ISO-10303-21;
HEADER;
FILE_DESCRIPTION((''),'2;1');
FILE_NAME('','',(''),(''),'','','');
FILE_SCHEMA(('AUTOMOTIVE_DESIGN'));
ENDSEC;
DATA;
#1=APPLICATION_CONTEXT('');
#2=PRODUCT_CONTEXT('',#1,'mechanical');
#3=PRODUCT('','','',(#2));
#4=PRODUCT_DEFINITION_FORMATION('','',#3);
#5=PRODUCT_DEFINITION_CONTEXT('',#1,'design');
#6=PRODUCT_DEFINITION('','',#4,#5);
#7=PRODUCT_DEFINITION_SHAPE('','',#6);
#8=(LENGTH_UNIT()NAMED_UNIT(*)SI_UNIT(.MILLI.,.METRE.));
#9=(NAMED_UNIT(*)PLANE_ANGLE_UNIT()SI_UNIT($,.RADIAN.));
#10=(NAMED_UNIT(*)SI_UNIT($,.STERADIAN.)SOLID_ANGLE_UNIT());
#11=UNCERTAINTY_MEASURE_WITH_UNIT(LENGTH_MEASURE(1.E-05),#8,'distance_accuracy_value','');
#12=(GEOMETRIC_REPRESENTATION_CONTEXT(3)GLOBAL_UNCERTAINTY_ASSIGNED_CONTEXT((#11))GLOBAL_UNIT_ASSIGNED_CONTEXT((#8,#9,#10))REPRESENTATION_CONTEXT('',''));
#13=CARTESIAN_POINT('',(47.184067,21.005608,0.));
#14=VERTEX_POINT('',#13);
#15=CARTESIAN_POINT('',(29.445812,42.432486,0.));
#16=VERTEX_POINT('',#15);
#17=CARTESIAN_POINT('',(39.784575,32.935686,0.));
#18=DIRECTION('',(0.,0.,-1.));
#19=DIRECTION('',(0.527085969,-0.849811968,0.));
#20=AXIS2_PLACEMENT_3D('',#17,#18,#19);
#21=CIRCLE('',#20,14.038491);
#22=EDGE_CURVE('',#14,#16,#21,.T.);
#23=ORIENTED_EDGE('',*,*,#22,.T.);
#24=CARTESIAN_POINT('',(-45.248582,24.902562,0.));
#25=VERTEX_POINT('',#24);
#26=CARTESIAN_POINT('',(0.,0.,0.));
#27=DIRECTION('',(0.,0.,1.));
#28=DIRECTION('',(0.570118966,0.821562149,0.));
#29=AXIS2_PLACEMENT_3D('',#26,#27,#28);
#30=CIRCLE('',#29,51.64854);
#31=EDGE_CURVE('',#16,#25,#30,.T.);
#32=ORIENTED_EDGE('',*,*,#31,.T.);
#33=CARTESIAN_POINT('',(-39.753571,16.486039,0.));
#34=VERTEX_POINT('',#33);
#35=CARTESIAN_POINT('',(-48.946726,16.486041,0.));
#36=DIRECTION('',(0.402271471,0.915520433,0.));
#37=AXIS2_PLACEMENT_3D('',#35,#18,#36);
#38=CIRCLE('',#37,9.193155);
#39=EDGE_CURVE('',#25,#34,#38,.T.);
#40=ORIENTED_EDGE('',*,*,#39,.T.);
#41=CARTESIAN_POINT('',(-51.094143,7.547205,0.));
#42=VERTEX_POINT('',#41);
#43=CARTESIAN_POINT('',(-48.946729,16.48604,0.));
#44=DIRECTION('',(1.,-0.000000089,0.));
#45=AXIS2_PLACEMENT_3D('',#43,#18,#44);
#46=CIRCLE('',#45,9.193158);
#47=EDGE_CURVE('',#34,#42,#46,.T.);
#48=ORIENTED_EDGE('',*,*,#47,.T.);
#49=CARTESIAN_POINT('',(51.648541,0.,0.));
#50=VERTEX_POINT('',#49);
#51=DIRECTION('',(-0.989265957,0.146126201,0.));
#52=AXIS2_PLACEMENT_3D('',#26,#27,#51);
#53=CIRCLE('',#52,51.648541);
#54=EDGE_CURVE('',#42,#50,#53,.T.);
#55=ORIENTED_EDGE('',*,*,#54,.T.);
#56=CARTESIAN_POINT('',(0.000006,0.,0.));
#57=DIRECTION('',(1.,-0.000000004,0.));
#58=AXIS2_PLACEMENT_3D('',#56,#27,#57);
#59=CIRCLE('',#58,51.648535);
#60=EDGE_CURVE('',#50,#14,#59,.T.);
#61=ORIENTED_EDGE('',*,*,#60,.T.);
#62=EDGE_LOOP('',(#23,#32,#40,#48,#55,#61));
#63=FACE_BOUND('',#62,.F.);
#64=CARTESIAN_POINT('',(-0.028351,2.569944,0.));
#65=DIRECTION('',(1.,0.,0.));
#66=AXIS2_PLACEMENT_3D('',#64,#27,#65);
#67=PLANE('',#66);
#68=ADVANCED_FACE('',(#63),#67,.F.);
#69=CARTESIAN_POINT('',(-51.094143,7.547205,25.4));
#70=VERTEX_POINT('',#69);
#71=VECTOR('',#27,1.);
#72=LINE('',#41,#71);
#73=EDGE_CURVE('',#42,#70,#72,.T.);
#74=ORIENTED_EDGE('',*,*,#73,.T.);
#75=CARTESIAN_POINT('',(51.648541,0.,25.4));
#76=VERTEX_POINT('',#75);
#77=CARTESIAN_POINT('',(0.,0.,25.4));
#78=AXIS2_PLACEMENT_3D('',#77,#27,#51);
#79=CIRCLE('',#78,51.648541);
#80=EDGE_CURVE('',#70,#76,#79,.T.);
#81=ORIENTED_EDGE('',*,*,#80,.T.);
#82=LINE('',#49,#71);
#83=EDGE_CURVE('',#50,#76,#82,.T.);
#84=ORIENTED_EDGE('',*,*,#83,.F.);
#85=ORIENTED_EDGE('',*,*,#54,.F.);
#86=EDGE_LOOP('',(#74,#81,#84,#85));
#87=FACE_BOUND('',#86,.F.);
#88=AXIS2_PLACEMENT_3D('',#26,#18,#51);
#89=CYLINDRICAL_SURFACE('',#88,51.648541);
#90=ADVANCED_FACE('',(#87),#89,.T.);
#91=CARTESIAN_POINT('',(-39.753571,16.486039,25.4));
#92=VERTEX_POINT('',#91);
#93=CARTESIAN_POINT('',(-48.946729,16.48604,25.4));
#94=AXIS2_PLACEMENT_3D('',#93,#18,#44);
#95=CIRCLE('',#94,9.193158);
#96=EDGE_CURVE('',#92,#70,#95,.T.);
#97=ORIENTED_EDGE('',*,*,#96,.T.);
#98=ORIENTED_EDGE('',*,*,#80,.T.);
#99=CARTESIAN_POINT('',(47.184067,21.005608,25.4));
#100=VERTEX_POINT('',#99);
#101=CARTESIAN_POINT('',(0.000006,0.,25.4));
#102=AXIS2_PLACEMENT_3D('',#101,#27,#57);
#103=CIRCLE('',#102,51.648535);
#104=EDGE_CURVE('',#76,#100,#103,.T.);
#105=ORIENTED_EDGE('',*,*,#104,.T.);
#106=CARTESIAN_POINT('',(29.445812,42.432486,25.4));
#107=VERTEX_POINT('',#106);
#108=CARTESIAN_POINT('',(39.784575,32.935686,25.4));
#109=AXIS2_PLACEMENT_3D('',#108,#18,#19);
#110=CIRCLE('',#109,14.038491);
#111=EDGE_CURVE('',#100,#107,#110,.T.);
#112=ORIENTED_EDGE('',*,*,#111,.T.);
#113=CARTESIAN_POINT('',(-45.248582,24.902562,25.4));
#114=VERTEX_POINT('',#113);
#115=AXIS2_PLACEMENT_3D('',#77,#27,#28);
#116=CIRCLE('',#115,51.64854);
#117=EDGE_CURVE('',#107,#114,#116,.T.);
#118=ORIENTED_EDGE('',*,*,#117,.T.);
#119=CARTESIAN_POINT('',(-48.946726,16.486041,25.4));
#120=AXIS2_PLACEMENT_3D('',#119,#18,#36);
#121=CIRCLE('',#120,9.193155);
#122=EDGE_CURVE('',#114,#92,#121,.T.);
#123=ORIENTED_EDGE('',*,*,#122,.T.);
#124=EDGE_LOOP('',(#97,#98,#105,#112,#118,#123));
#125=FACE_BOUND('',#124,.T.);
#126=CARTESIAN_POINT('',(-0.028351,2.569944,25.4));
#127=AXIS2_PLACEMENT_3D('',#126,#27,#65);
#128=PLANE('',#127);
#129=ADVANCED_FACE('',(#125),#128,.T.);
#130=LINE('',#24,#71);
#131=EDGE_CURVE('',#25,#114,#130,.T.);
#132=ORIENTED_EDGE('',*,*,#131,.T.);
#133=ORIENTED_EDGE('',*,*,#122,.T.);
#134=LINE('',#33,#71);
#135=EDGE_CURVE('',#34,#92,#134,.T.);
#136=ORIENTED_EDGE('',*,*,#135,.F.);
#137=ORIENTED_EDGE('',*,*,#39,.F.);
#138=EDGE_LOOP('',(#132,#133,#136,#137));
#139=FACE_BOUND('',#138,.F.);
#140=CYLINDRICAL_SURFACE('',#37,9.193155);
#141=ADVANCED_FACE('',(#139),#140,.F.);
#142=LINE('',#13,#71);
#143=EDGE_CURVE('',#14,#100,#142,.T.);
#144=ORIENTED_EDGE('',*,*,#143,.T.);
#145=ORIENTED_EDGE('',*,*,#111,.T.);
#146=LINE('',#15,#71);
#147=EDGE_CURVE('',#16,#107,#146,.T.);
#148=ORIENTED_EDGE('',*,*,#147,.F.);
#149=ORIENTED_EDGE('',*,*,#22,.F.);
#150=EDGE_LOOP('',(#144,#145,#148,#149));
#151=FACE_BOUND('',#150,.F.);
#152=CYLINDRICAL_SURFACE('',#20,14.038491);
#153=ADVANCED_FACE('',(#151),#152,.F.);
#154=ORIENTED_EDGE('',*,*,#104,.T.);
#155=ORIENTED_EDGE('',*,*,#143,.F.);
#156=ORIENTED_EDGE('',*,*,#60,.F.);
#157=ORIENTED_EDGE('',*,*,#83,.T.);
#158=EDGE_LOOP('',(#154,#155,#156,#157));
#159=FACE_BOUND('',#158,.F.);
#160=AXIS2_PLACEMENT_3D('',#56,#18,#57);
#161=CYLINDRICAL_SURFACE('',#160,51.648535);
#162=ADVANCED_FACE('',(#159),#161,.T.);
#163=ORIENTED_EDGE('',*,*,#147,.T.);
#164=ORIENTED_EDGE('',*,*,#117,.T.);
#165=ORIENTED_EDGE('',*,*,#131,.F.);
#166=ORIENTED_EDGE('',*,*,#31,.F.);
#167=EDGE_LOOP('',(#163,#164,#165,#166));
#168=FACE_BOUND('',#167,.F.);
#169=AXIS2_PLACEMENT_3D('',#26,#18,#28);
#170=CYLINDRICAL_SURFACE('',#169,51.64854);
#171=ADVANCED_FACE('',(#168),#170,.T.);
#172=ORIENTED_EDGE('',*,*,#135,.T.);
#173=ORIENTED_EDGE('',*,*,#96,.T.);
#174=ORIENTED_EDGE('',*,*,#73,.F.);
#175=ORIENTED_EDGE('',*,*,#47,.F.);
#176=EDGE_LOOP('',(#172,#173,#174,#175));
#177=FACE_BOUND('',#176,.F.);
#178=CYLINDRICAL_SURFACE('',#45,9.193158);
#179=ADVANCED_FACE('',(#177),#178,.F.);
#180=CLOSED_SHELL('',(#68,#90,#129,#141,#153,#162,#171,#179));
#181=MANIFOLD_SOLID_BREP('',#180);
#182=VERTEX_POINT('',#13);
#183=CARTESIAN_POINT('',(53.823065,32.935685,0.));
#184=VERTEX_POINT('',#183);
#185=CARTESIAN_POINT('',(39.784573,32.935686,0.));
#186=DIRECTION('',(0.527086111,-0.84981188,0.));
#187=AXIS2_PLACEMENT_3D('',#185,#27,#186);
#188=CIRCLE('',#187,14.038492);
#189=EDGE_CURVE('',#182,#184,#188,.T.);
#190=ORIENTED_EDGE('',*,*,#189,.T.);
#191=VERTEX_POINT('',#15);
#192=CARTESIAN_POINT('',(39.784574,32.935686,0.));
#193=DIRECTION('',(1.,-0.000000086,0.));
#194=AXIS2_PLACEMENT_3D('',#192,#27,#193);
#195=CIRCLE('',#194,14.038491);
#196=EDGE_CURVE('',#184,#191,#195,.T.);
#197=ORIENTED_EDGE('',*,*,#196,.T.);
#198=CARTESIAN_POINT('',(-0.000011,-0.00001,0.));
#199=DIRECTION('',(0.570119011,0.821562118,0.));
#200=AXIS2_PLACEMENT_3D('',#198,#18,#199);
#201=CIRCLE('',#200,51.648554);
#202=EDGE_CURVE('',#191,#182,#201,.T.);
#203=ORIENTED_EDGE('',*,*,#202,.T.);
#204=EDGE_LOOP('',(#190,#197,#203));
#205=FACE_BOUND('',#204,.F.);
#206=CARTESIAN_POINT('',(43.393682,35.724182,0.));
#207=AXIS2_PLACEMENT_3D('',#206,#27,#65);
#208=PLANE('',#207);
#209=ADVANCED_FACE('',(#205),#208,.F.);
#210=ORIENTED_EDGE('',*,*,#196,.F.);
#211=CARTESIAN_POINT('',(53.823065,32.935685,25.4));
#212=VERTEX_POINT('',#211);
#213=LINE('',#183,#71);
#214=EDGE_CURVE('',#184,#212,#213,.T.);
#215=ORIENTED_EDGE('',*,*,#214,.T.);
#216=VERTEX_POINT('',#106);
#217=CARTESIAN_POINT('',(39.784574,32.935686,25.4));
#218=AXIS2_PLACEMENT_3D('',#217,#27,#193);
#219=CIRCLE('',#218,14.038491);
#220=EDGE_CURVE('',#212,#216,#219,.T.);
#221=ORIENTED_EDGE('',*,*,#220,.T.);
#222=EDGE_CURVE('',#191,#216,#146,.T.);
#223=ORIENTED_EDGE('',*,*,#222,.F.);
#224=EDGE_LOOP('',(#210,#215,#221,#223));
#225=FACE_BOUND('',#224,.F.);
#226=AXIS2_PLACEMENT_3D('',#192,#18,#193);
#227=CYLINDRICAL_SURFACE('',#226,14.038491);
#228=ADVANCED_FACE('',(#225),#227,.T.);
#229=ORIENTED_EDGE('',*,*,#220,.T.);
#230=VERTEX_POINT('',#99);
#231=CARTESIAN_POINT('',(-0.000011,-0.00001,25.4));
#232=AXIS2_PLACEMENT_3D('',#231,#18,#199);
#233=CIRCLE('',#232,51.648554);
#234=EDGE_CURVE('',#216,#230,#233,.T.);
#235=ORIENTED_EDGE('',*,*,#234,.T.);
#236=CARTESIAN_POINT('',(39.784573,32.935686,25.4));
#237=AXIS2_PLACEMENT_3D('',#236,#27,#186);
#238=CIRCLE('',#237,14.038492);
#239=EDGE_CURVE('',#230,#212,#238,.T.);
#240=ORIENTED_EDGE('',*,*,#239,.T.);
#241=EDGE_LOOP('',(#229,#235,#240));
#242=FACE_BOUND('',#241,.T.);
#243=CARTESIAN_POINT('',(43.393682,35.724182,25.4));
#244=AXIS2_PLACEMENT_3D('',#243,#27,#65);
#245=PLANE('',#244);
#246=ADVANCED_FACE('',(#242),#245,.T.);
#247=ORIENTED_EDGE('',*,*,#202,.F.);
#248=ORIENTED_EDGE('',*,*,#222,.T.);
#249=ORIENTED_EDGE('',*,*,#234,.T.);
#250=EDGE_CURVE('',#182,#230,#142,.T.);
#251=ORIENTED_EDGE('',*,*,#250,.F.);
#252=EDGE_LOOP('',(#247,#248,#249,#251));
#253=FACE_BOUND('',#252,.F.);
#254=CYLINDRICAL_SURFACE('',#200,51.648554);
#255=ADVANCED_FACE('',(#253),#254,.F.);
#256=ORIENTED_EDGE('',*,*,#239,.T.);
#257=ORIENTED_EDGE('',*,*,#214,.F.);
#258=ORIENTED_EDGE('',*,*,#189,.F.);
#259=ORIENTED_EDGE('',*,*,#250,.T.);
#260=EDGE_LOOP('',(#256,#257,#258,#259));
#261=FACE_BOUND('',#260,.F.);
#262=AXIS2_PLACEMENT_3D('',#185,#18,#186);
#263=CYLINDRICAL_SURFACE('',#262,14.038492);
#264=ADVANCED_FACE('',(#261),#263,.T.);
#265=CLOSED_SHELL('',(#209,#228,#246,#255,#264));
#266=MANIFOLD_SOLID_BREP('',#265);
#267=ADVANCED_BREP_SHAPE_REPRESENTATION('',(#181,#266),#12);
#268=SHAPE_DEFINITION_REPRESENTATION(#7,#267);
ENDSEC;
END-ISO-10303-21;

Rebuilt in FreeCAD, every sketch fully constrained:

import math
import FreeCAD as App
import Part
import Sketcher

V = App.Vector

doc = App.newDocument("Part")
params = doc.addObject("Spreadsheet::Sheet", "Params")
for row, (alias, value) in enumerate([
    ("pad1_length", "1 in"),
], start=1):
    params.set(f"A{row}", alias)
    params.set(f"B{row}", "=" + value)
    params.setAlias(f"B{row}", alias)

body = doc.addObject("PartDesign::Body", "Body")
body.AllowCompound = True

# Sketch on XY plane
sketch1 = doc.addObject("Sketcher::SketchObject", "Sketch")
body.addObject(sketch1)
sketch1.AttachmentSupport = (doc.XY_Plane, [""])
sketch1.MapMode = "FlatFace"
sketch1.addGeometry(Part.ArcOfCircle(Part.Circle(V(0, 0, 0), V(0, 0, 1), 52), math.radians(172), math.radians(360)), False)
sketch1.addGeometry(Part.ArcOfCircle(Part.Circle(V(0, 0, 0), V(0, 0, 1), 52), math.radians(0), math.radians(24)), False)
sketch1.addGeometry(Part.ArcOfCircle(Part.Circle(V(40, 33, 0), V(0, 0, 1), 14), math.radians(137), math.radians(302)), False)
sketch1.addGeometry(Part.ArcOfCircle(Part.Circle(V(0, 0, 0), V(0, 0, 1), 52), math.radians(55), math.radians(151)), False)
sketch1.addGeometry(Part.ArcOfCircle(Part.Circle(V(-49, 16, 0), V(0, 0, 1), 9), math.radians(0), math.radians(66)), False)
sketch1.addGeometry(Part.ArcOfCircle(Part.Circle(V(-49, 16, 0), V(0, 0, 1), 9), math.radians(-104), math.radians(0)), False)
sketch1.addGeometry(Part.ArcOfCircle(Part.Circle(V(0, 0, 0), V(0, 0, 1), 52), math.radians(24), math.radians(55)), False)
sketch1.addGeometry(Part.ArcOfCircle(Part.Circle(V(40, 33, 0), V(0, 0, 1), 14), math.radians(-58), math.radians(0)), False)
sketch1.addGeometry(Part.ArcOfCircle(Part.Circle(V(40, 33, 0), V(0, 0, 1), 14), math.radians(0), math.radians(137)), False)
sketch1.addConstraint(Sketcher.Constraint("Tangent", 0, 2, 1, 1))
sketch1.addConstraint(Sketcher.Constraint("Coincident", 1, 2, 2, 2))
sketch1.addConstraint(Sketcher.Constraint("Coincident", 2, 1, 3, 1))
sketch1.addConstraint(Sketcher.Constraint("Coincident", 3, 2, 4, 2))
sketch1.addConstraint(Sketcher.Constraint("Tangent", 4, 1, 5, 2))
sketch1.addConstraint(Sketcher.Constraint("Coincident", 5, 1, 0, 1))
sketch1.addConstraint(Sketcher.Constraint("Coincident", 6, 1, 7, 1))
sketch1.addConstraint(Sketcher.Constraint("Tangent", 7, 2, 8, 1))
sketch1.addConstraint(Sketcher.Constraint("Coincident", 8, 2, 6, 2))
sketch1.addConstraint(Sketcher.Constraint("Coincident", 0, 3, -1, 1))
sketch1.addConstraint(Sketcher.Constraint("Coincident", 3, 3, -1, 1))
sketch1.addConstraint(Sketcher.Constraint("Coincident", 7, 3, 2, 3))
sketch1.addConstraint(Sketcher.Constraint("Coincident", 6, 1, 1, 2))
sketch1.addConstraint(Sketcher.Constraint("Coincident", 8, 2, 2, 1))
sketch1.addConstraint(Sketcher.Constraint("Equal", 0, 3))
sketch1.addConstraint(Sketcher.Constraint("PointOnObject", 0, 2, -1))
sketch1.addConstraint(Sketcher.Constraint("Horizontal", 5, 3, 4, 1))
sketch1.addConstraint(Sketcher.Constraint("Horizontal", 8, 3, 7, 2))
sketch1.addConstraint(Sketcher.Constraint("Radius", 0, 51.648541))
sketch1.addConstraint(Sketcher.Constraint("Radius", 2, 14.038491))
sketch1.addConstraint(Sketcher.Constraint("Radius", 5, 9.193158))
sketch1.addConstraint(Sketcher.Constraint("Radius", 1, 51.648535))
sketch1.addConstraint(Sketcher.Constraint("Radius", 4, 9.193155))
sketch1.addConstraint(Sketcher.Constraint("Radius", 6, 51.648554))
sketch1.addConstraint(Sketcher.Constraint("DistanceX", 4, 3, 2, 3, 88.731301))
sketch1.addConstraint(Sketcher.Constraint("DistanceY", 7, 3, 2, 1, 9.4968))
sketch1.addConstraint(Sketcher.Constraint("DistanceY", -1, 1, 4, 3, 16.486041))
sketch1.addConstraint(Sketcher.Constraint("DistanceX", 5, 3, -1, 1, 48.946729))
pad1 = doc.addObject("PartDesign::Pad", "Pad")
body.addObject(pad1)
pad1.Profile = sketch1
pad1.setExpression("Length", "Params.pad1_length")

doc.recompute()
